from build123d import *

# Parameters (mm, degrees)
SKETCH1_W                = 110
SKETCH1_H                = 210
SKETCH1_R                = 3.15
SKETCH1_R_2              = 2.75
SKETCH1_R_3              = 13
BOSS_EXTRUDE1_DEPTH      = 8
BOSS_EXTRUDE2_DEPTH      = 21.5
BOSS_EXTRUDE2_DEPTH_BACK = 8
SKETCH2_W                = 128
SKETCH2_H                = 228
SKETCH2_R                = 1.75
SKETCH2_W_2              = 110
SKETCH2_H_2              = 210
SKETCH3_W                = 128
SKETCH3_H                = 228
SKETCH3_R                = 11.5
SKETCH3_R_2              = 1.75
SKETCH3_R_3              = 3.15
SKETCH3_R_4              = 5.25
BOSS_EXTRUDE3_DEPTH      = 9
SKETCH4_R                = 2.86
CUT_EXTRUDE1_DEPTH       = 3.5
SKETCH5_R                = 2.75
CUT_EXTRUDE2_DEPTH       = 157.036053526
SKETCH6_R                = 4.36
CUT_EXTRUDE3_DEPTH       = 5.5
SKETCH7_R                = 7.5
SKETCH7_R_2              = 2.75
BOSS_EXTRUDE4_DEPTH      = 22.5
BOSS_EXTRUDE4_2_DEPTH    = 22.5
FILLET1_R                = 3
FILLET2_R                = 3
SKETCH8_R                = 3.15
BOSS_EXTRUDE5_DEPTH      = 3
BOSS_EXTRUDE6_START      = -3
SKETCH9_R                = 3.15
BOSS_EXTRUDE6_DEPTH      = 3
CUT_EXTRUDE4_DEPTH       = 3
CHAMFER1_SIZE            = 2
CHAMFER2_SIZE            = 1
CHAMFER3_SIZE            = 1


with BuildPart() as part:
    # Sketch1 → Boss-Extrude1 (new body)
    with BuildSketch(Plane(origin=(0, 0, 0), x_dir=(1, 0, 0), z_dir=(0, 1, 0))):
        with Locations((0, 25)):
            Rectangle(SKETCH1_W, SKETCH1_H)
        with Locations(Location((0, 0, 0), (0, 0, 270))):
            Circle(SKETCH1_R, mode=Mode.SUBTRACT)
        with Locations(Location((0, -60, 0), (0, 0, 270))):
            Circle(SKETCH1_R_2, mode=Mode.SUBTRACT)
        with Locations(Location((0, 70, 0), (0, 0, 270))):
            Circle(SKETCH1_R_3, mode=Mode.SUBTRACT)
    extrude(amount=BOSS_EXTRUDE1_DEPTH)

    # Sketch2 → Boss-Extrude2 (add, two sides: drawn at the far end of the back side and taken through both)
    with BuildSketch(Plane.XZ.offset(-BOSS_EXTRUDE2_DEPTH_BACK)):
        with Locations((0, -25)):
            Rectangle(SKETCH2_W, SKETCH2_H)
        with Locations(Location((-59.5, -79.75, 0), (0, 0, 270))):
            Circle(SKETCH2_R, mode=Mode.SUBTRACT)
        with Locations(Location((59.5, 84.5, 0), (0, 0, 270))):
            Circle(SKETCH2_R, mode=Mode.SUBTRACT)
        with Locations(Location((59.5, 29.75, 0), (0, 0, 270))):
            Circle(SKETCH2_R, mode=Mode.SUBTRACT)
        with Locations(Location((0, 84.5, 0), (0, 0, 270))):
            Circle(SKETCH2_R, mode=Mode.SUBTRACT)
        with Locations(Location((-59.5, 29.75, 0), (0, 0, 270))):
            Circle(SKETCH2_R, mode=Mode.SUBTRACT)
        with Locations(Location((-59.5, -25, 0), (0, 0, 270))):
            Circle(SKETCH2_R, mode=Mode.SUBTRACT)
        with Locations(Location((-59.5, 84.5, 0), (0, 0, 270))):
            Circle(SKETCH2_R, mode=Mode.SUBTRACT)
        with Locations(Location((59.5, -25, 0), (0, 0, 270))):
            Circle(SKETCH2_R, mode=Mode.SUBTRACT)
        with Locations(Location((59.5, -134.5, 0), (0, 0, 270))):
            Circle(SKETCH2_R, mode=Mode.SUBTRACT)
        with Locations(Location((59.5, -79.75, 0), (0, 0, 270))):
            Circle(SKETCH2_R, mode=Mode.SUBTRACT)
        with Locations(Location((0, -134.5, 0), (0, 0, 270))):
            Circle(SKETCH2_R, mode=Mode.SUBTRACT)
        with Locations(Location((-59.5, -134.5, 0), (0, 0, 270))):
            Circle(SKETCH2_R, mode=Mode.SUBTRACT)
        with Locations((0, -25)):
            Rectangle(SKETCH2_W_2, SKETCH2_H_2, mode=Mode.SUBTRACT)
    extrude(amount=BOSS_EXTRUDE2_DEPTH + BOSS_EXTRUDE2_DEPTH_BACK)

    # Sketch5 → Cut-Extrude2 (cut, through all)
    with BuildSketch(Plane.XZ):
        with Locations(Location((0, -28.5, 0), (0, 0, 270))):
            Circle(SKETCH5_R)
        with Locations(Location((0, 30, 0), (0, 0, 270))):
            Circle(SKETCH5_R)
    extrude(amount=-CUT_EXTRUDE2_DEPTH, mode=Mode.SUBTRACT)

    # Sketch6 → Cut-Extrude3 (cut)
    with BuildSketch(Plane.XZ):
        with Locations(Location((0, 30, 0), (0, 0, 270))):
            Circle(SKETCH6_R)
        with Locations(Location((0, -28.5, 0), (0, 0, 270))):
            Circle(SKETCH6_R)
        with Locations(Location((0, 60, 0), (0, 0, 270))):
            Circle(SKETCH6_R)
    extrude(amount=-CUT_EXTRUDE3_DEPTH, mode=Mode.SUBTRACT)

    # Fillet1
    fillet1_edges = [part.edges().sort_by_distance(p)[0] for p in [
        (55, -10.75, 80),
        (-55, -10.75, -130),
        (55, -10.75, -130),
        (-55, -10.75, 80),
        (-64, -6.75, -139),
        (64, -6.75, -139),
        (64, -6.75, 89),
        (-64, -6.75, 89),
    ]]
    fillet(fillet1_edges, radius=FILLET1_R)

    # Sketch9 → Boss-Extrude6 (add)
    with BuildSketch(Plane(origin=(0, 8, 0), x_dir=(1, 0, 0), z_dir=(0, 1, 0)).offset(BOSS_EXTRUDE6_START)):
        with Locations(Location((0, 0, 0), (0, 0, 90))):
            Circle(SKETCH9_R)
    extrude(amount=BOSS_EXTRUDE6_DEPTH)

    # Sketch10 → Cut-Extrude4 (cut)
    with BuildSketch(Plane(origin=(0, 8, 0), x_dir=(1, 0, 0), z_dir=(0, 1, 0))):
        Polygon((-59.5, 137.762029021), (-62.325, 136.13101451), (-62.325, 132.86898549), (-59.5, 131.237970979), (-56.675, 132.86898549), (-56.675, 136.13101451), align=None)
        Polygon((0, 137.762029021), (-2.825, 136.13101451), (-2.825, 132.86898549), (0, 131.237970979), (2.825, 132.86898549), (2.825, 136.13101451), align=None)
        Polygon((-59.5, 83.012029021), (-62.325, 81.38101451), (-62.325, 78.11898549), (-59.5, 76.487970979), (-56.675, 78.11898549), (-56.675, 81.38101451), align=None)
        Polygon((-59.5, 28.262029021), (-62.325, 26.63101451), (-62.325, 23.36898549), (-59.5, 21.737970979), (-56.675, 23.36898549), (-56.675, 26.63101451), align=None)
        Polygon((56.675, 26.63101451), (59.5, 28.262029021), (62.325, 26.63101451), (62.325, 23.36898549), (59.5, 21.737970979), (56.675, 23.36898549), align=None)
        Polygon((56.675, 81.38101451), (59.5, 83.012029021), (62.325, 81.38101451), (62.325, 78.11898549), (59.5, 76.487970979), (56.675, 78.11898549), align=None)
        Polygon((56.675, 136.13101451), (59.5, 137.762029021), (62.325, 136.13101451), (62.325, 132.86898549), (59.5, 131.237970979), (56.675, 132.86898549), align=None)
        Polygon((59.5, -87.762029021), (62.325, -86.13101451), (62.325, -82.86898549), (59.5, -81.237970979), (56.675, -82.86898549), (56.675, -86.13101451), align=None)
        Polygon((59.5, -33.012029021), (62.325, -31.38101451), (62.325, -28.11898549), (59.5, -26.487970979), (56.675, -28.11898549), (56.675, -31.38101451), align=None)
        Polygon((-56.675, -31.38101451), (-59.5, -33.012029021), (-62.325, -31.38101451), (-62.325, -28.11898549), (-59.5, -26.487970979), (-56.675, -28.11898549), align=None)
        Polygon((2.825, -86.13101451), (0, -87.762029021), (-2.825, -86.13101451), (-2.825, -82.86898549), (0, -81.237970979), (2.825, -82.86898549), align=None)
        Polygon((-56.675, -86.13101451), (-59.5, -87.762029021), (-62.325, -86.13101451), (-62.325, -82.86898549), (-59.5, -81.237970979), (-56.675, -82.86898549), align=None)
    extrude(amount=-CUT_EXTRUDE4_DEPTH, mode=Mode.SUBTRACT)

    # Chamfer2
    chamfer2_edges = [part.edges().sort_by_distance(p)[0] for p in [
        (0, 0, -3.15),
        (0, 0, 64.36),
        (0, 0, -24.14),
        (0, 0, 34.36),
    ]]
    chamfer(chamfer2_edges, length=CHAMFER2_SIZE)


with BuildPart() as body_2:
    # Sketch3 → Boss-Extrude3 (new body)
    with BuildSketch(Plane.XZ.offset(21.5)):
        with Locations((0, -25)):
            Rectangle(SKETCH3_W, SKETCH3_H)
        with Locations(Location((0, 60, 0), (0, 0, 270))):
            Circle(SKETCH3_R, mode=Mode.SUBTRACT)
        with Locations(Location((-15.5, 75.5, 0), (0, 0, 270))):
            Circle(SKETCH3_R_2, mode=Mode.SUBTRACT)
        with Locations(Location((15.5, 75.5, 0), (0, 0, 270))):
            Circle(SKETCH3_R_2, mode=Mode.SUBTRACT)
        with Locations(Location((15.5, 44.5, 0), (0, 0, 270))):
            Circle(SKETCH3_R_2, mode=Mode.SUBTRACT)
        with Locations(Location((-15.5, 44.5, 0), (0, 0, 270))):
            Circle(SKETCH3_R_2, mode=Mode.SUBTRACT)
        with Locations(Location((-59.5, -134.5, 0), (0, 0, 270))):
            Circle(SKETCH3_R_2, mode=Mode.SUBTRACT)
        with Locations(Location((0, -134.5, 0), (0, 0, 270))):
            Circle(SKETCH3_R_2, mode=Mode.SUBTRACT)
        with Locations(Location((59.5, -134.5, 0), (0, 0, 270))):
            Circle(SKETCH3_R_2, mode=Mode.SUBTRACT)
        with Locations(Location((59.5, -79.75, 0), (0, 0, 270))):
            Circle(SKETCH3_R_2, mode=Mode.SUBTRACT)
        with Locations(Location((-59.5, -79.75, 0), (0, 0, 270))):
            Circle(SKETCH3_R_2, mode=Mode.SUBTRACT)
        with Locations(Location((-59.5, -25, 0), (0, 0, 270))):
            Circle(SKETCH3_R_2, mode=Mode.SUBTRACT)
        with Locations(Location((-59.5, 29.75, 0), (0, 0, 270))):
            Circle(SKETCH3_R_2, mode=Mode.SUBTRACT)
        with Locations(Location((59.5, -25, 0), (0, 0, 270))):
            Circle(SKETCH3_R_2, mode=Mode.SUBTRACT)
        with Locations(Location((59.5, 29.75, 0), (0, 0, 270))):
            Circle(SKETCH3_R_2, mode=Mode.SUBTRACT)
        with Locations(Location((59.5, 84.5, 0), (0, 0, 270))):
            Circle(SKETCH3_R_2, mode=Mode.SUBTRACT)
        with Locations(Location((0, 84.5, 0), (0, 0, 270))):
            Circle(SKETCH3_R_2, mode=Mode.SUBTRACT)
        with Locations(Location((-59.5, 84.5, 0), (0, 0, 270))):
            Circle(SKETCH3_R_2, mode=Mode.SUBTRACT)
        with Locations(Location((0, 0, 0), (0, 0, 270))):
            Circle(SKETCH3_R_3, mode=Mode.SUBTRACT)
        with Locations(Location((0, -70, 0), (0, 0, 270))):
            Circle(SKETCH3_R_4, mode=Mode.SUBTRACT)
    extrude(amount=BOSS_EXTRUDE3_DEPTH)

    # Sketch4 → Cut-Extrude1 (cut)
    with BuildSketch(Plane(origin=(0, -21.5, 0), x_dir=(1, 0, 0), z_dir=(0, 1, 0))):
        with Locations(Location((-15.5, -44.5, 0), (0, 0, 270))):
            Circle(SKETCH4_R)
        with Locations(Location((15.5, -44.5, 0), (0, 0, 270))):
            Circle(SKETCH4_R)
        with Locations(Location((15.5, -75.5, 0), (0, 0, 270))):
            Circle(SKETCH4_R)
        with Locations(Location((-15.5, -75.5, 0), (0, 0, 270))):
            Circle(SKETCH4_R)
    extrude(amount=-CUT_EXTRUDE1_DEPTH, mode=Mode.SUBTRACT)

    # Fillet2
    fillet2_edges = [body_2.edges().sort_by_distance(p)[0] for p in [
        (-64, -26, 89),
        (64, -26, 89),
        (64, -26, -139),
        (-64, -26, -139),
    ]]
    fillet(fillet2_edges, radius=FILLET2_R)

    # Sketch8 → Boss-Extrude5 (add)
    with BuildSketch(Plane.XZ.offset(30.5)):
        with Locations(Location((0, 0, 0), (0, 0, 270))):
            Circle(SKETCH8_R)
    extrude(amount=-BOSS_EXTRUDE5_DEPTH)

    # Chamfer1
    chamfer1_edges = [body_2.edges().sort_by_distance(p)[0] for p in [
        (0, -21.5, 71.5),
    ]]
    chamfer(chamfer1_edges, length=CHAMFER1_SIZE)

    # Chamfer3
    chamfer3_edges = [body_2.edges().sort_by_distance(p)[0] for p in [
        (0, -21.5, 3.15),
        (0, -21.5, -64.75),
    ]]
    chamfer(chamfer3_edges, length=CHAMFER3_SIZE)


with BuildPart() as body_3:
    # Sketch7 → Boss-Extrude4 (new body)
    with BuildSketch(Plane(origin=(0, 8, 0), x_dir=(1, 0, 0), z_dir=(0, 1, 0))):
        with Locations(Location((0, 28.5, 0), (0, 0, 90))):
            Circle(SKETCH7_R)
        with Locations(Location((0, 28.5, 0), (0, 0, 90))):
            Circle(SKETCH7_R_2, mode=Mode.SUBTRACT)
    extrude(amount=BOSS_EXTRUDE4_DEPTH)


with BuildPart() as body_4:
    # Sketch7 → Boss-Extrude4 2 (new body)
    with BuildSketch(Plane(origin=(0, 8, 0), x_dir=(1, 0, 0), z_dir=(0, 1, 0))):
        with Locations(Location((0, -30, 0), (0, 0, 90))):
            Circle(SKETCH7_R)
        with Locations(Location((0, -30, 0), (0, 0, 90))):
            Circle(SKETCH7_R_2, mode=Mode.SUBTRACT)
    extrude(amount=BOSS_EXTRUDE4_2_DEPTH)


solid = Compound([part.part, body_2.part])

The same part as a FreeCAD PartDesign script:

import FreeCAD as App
import Part
import Sketcher

V = App.Vector
Q = App.Units.Quantity


def edges_at(feature, points):
    """Names of the edges that pass closest to the given points."""
    edges = feature.Shape.Edges
    near = lambda p: min(range(len(edges)), key=lambda i: edges[i].distToShape(Part.Vertex(*p))[0])
    return sorted({f"Edge{near(p) + 1}" for p in points})


def add_polygon(sketch, points):
    """Adds a closed chain of lines whose ends are joined by coincident constraints."""
    first, n = sketch.GeometryCount, len(points)
    for a, b in zip(points, points[1:] + points[:1]):
        sketch.addGeometry(Part.LineSegment(App.Vector(*a, 0), App.Vector(*b, 0)), False)
    for i in range(n):
        sketch.addConstraint(Sketcher.Constraint("Coincident", first + i, 2, first + (i + 1) % n, 1))

doc = App.newDocument("Part")
params = doc.addObject("Spreadsheet::Sheet", "Params")
for row, (alias, value) in enumerate([
    ("sketch1_diameter", "26 mm"),
    ("sketch1_diameter2", "5.5 mm"),
    ("sketch1_diameter3", "6.3 mm"),
    ("sketch1_width", "110 mm"),
    ("sketch1_height", "210 mm"),
    ("pad1_length", "8 mm"),
    ("sketch2_diameter", "3.5 mm"),
    ("sketch2_width", "128 mm"),
    ("sketch2_width2", "110 mm"),
    ("sketch2_height", "228 mm"),
    ("sketch2_height2", "210 mm"),
    ("pad2_length", "21.5 mm"),
    ("pad2_length2", "8 mm"),
    ("sketch3_diameter", "5.5 mm"),
    ("sketch4_diameter", "8.72 mm"),
    ("pocket2_length", "5.5 mm"),
    ("fillet_radius", "3 mm"),
    ("sketch5_diameter", "6.3 mm"),
    ("pad3_length", "3 mm"),
    ("pocket3_length", "3 mm"),
    ("chamfer_size", "1 mm"),
    ("sketch7_diameter", "23 mm"),
    ("sketch7_diameter2", "3.5 mm"),
    ("sketch7_diameter3", "10.5 mm"),
    ("sketch7_diameter4", "6.3 mm"),
    ("sketch7_width", "128 mm"),
    ("pad4_length", "9 mm"),
    ("sketch8_diameter", "5.72 mm"),
    ("pocket4_length", "3.5 mm"),
    ("fillet2_radius", "3 mm"),
    ("sketch9_diameter", "6.3 mm"),
    ("pad5_length", "3 mm"),
    ("chamfer2_size", "2 mm"),
    ("chamfer3_size", "1 mm"),
    ("sketch10_diameter", "15 mm"),
    ("sketch10_diameter2", "5.5 mm"),
    ("pad6_length", "22.5 mm"),
    ("sketch11_diameter", "15 mm"),
    ("sketch11_diameter2", "5.5 mm"),
    ("pad7_length", "22.5 mm"),
], start=1):
    params.set(f"A{row}", alias)
    params.set(f"B{row}", "=" + value)
    params.setAlias(f"B{row}", alias)

body = doc.addObject("PartDesign::Body", "Body")

# Sketch on XZ plane
sketch1 = doc.addObject("Sketcher::SketchObject", "Sketch")
body.addObject(sketch1)
sketch1.AttachmentSupport = (doc.XZ_Plane, [""])
sketch1.MapMode = "FlatFace"
add_polygon(sketch1, [(-55, -130), (-55, 80), (55, 80), (55, -130)])  # lines 0-3
sketch1.addGeometry(Part.Circle(V(0, 60, 0), V(0, 0, 1), 2.8), False)  # 4
sketch1.addGeometry(Part.Circle(V(0, 0, 0), V(0, 0, 1), 3.1), False)  # 5
sketch1.addGeometry(Part.Circle(V(0, -70, 0), V(0, 0, 1), 13), False)  # 6
sketch1.addConstraint(Sketcher.Constraint("Vertical", 0))
sketch1.addConstraint(Sketcher.Constraint("Horizontal", 1))
sketch1.addConstraint(Sketcher.Constraint("Vertical", 2))
sketch1.addConstraint(Sketcher.Constraint("Horizontal", 3))
sketch1.addConstraint(Sketcher.Constraint("Coincident", 5, 3, -1, 1))
sketch1.addConstraint(Sketcher.Constraint("PointOnObject", 4, 3, -2))
sketch1.addConstraint(Sketcher.Constraint("PointOnObject", 6, 3, -2))
sketch1.addConstraint(Sketcher.Constraint("Diameter", 6, Q("26 mm")))
sketch1.addConstraint(Sketcher.Constraint("Diameter", 4, Q("5.5 mm")))
sketch1.addConstraint(Sketcher.Constraint("Diameter", 5, Q("6.3 mm")))
sketch1.addConstraint(Sketcher.Constraint("DistanceX", 1, 1, 1, 2, Q("110 mm")))
sketch1.addConstraint(Sketcher.Constraint("DistanceY", 0, 1, 0, 2, Q("210 mm")))
sketch1.addConstraint(Sketcher.Constraint("DistanceY", -1, 1, 4, 3, Q("60 mm")))
sketch1.addConstraint(Sketcher.Constraint("DistanceY", 6, 3, -1, 1, Q("70 mm")))
sketch1.addConstraint(Sketcher.Constraint("DistanceX", 0, 2, -1, 1, Q("55 mm")))
sketch1.addConstraint(Sketcher.Constraint("DistanceY", -1, 1, 0, 2, Q("80 mm")))
sketch1.setExpression("Constraints[11]", "Params.sketch1_diameter")
sketch1.setExpression("Constraints[12]", "Params.sketch1_diameter2")
sketch1.setExpression("Constraints[13]", "Params.sketch1_diameter3")
sketch1.setExpression("Constraints[14]", "Params.sketch1_width")
sketch1.setExpression("Constraints[15]", "Params.sketch1_height")
pad1 = doc.addObject("PartDesign::Pad", "Pad")
body.addObject(pad1)
pad1.Profile = sketch1
pad1.setExpression("Length", "Params.pad1_length")
pad1.Reversed = True

# Sketch on XZ plane
sketch2 = doc.addObject("Sketcher::SketchObject", "Sketch001")
body.addObject(sketch2)
sketch2.AttachmentSupport = (doc.XZ_Plane, [""])
sketch2.MapMode = "FlatFace"
add_polygon(sketch2, [(-64, 89), (-64, -139), (64, -139), (64, 89)])  # lines 0-3
sketch2.addGeometry(Part.Circle(V(-59.5, -134.5, 0), V(0, 0, 1), 1.8), False)  # 4
sketch2.addGeometry(Part.Circle(V(-59.5, -79.8, 0), V(0, 0, 1), 1.8), False)  # 5
sketch2.addGeometry(Part.Circle(V(0, -134.5, 0), V(0, 0, 1), 1.8), False)  # 6
sketch2.addGeometry(Part.Circle(V(59.5, -134.5, 0), V(0, 0, 1), 1.8), False)  # 7
sketch2.addGeometry(Part.Circle(V(59.5, -79.8, 0), V(0, 0, 1), 1.8), False)  # 8
sketch2.addGeometry(Part.Circle(V(-59.5, -25, 0), V(0, 0, 1), 1.8), False)  # 9
sketch2.addGeometry(Part.Circle(V(-59.5, 29.8, 0), V(0, 0, 1), 1.8), False)  # 10
sketch2.addGeometry(Part.Circle(V(-59.5, 84.5, 0), V(0, 0, 1), 1.8), False)  # 11
add_polygon(sketch2, [(55, -130), (-55, -130), (-55, 80), (55, 80)])  # lines 12-15
sketch2.addGeometry(Part.Circle(V(59.5, -25, 0), V(0, 0, 1), 1.8), False)  # 16
sketch2.addGeometry(Part.Circle(V(59.5, 29.8, 0), V(0, 0, 1), 1.8), False)  # 17
sketch2.addGeometry(Part.Circle(V(0, 84.5, 0), V(0, 0, 1), 1.8), False)  # 18
sketch2.addGeometry(Part.Circle(V(59.5, 84.5, 0), V(0, 0, 1), 1.8), False)  # 19
sketch2.addConstraint(Sketcher.Constraint("Vertical", 0))
sketch2.addConstraint(Sketcher.Constraint("Horizontal", 1))
sketch2.addConstraint(Sketcher.Constraint("Vertical", 2))
sketch2.addConstraint(Sketcher.Constraint("Horizontal", 3))
sketch2.addConstraint(Sketcher.Constraint("Horizontal", 12))
sketch2.addConstraint(Sketcher.Constraint("Vertical", 13))
sketch2.addConstraint(Sketcher.Constraint("Horizontal", 14))
sketch2.addConstraint(Sketcher.Constraint("Vertical", 15))
sketch2.addConstraint(Sketcher.Constraint("Equal", 4, 5))
sketch2.addConstraint(Sketcher.Constraint("Equal", 5, 6))
sketch2.addConstraint(Sketcher.Constraint("Equal", 6, 7))
sketch2.addConstraint(Sketcher.Constraint("Equal", 7, 8))
sketch2.addConstraint(Sketcher.Constraint("Equal", 8, 9))
sketch2.addConstraint(Sketcher.Constraint("Equal", 9, 10))
sketch2.addConstraint(Sketcher.Constraint("Equal", 10, 11))
sketch2.addConstraint(Sketcher.Constraint("Equal", 11, 16))
sketch2.addConstraint(Sketcher.Constraint("Equal", 16, 17))
sketch2.addConstraint(Sketcher.Constraint("Equal", 17, 18))
sketch2.addConstraint(Sketcher.Constraint("Equal", 18, 19))
sketch2.addConstraint(Sketcher.Constraint("Symmetric", 4, 3, 7, 3, -2))
sketch2.addConstraint(Sketcher.Constraint("Symmetric", 5, 3, 8, 3, -2))
sketch2.addConstraint(Sketcher.Constraint("Symmetric", 9, 3, 16, 3, -2))
sketch2.addConstraint(Sketcher.Constraint("Symmetric", 10, 3, 17, 3, -2))
sketch2.addConstraint(Sketcher.Constraint("Symmetric", 11, 3, 19, 3, -2))
sketch2.addConstraint(Sketcher.Constraint("PointOnObject", 6, 3, -2))
sketch2.addConstraint(Sketcher.Constraint("PointOnObject", 18, 3, -2))
sketch2.addConstraint(Sketcher.Constraint("Horizontal", 4, 3, 6, 3))
sketch2.addConstraint(Sketcher.Constraint("Horizontal", 11, 3, 18, 3))
sketch2.addConstraint(Sketcher.Constraint("Vertical", 4, 3, 5, 3))
sketch2.addConstraint(Sketcher.Constraint("Vertical", 5, 3, 9, 3))
sketch2.addConstraint(Sketcher.Constraint("Vertical", 9, 3, 10, 3))
sketch2.addConstraint(Sketcher.Constraint("Vertical", 10, 3, 11, 3))
sketch2.addConstraint(Sketcher.Constraint("Diameter", 4, Q("3.5 mm")))
sketch2.addConstraint(Sketcher.Constraint("DistanceX", 1, 1, 1, 2, Q("128 mm")))
sketch2.addConstraint(Sketcher.Constraint("DistanceX", 12, 2, 12, 1, Q("110 mm")))
sketch2.addConstraint(Sketcher.Constraint("DistanceY", 0, 2, 0, 1, Q("228 mm")))
sketch2.addConstraint(Sketcher.Constraint("DistanceY", 13, 1, 13, 2, Q("210 mm")))
sketch2.addConstraint(Sketcher.Constraint("DistanceY", 9, 3, -1, 1, Q("25 mm")))
sketch2.addConstraint(Sketcher.Constraint("DistanceX", 0, 2, -1, 1, Q("64 mm")))
sketch2.addConstraint(Sketcher.Constraint("DistanceY", 0, 2, -1, 1, Q("139 mm")))
sketch2.addConstraint(Sketcher.Constraint("DistanceX", 12, 2, -1, 1, Q("55 mm")))
sketch2.addConstraint(Sketcher.Constraint("DistanceY", 12, 2, -1, 1, Q("130 mm")))
sketch2.addConstraint(Sketcher.Constraint("DistanceX", 4, 3, 7, 3, Q("119 mm")))
sketch2.addConstraint(Sketcher.Constraint("DistanceY", 4, 3, 11, 3, Q("219 mm")))
sketch2.addConstraint(Sketcher.Constraint("DistanceY", 4, 3, -1, 1, Q("134.5 mm")))
sketch2.addConstraint(Sketcher.Constraint("DistanceY", 5, 3, 10, 3, Q("109.5 mm")))
sketch2.addConstraint(Sketcher.Constraint("DistanceY", 5, 3, -1, 1, Q("79.75 mm")))
sketch2.setExpression("Constraints[40]", "Params.sketch2_diameter")
sketch2.setExpression("Constraints[41]", "Params.sketch2_width")
sketch2.setExpression("Constraints[42]", "Params.sketch2_width2")
sketch2.setExpression("Constraints[43]", "Params.sketch2_height")
sketch2.setExpression("Constraints[44]", "Params.sketch2_height2")
pad2 = doc.addObject("PartDesign::Pad", "Pad001")
body.addObject(pad2)
pad2.Profile = sketch2
pad2.Type = "TwoLengths"
pad2.setExpression("Length", "Params.pad2_length")
pad2.setExpression("Length2", "Params.pad2_length2")

# Sketch on XZ plane
sketch3 = doc.addObject("Sketcher::SketchObject", "Sketch002")
body.addObject(sketch3)
sketch3.AttachmentSupport = (doc.XZ_Plane, [""])
sketch3.MapMode = "FlatFace"
sketch3.addGeometry(Part.Circle(V(0, -28.5, 0), V(0, 0, 1), 2.8), False)
sketch3.addGeometry(Part.Circle(V(0, 30, 0), V(0, 0, 1), 2.8), False)
sketch3.addConstraint(Sketcher.Constraint("Equal", 0, 1))
sketch3.addConstraint(Sketcher.Constraint("PointOnObject", 0, 3, -2))
sketch3.addConstraint(Sketcher.Constraint("PointOnObject", 1, 3, -2))
sketch3.addConstraint(Sketcher.Constraint("Diameter", 0, Q("5.5 mm")))
sketch3.addConstraint(Sketcher.Constraint("DistanceY", -1, 1, 1, 3, Q("30 mm")))
sketch3.addConstraint(Sketcher.Constraint("DistanceY", 0, 3, -1, 1, Q("28.5 mm")))
sketch3.setExpression("Constraints[3]", "Params.sketch3_diameter")
pocket1 = doc.addObject("PartDesign::Pocket", "Pocket")
body.addObject(pocket1)
pocket1.Profile = sketch3
pocket1.Type = "ThroughAll"

# Sketch on XZ plane
sketch4 = doc.addObject("Sketcher::SketchObject", "Sketch003")
body.addObject(sketch4)
sketch4.AttachmentSupport = (doc.XZ_Plane, [""])
sketch4.MapMode = "FlatFace"
sketch4.addGeometry(Part.Circle(V(0, 30, 0), V(0, 0, 1), 4.4), False)
sketch4.addGeometry(Part.Circle(V(0, -28.5, 0), V(0, 0, 1), 4.4), False)
sketch4.addGeometry(Part.Circle(V(0, 60, 0), V(0, 0, 1), 4.4), False)
sketch4.addConstraint(Sketcher.Constraint("Equal", 0, 1))
sketch4.addConstraint(Sketcher.Constraint("Equal", 1, 2))
sketch4.addConstraint(Sketcher.Constraint("PointOnObject", 0, 3, -2))
sketch4.addConstraint(Sketcher.Constraint("PointOnObject", 1, 3, -2))
sketch4.addConstraint(Sketcher.Constraint("PointOnObject", 2, 3, -2))
sketch4.addConstraint(Sketcher.Constraint("Diameter", 0, Q("8.72 mm")))
sketch4.addConstraint(Sketcher.Constraint("DistanceY", -1, 1, 0, 3, Q("30 mm")))
sketch4.addConstraint(Sketcher.Constraint("DistanceY", -1, 1, 2, 3, Q("60 mm")))
sketch4.addConstraint(Sketcher.Constraint("DistanceY", 1, 3, -1, 1, Q("28.5 mm")))
sketch4.setExpression("Constraints[5]", "Params.sketch4_diameter")
pocket2 = doc.addObject("PartDesign::Pocket", "Pocket001")
body.addObject(pocket2)
pocket2.Profile = sketch4
pocket2.setExpression("Length", "Params.pocket2_length")
doc.recompute()

fillet = doc.addObject("PartDesign::Fillet", "Fillet")
body.addObject(fillet)
fillet.Base = (pocket2, edges_at(pocket2, [
    (55, -10.75, 80),
    (-55, -10.75, -130),
    (55, -10.75, -130),
    (-55, -10.75, 80),
    (-64, -6.75, -139),
    (64, -6.75, -139),
    (64, -6.75, 89),
    (-64, -6.75, 89),
]))
fillet.setExpression("Radius", "Params.fillet_radius")

# Sketch on XZ plane
sketch5 = doc.addObject("Sketcher::SketchObject", "Sketch004")
body.addObject(sketch5)
sketch5.AttachmentSupport = (doc.XZ_Plane, [""])
sketch5.MapMode = "FlatFace"
sketch5.AttachmentOffset = App.Placement(V(0, 0, -5), App.Rotation())
sketch5.addGeometry(Part.Circle(V(0, 0, 0), V(0, 0, 1), 3.1), False)
sketch5.addConstraint(Sketcher.Constraint("Coincident", 0, 3, -1, 1))
sketch5.addConstraint(Sketcher.Constraint("Diameter", 0, Q("6.3 mm")))
sketch5.setExpression("Constraints[1]", "Params.sketch5_diameter")
pad3 = doc.addObject("PartDesign::Pad", "Pad002")
body.addObject(pad3)
pad3.Profile = sketch5
pad3.setExpression("Length", "Params.pad3_length")
pad3.Reversed = True

# Sketch on XZ plane
sketch6 = doc.addObject("Sketcher::SketchObject", "Sketch005")
body.addObject(sketch6)
sketch6.AttachmentSupport = (doc.XZ_Plane, [""])
sketch6.MapMode = "FlatFace"
sketch6.AttachmentOffset = App.Placement(V(0, 0, -8), App.Rotation())
add_polygon(sketch6, [(-59.5, -137.8), (-62.3, -136.1), (-62.3, -132.9), (-59.5, -131.2), (-56.7, -132.9), (-56.7, -136.1)])  # lines 0-5
add_polygon(sketch6, [(0, -137.8), (-2.8, -136.1), (-2.8, -132.9), (0, -131.2), (2.8, -132.9), (2.8, -136.1)])  # lines 6-11
add_polygon(sketch6, [(-59.5, -83), (-62.3, -81.4), (-62.3, -78.1), (-59.5, -76.5), (-56.7, -78.1), (-56.7, -81.4)])  # lines 12-17
add_polygon(sketch6, [(-59.5, -28.3), (-62.3, -26.6), (-62.3, -23.4), (-59.5, -21.7), (-56.7, -23.4), (-56.7, -26.6)])  # lines 18-23
add_polygon(sketch6, [(59.5, -28.3), (56.7, -26.6), (56.7, -23.4), (59.5, -21.7), (62.3, -23.4), (62.3, -26.6)])  # lines 24-29
add_polygon(sketch6, [(59.5, -83), (56.7, -81.4), (56.7, -78.1), (59.5, -76.5), (62.3, -78.1), (62.3, -81.4)])  # lines 30-35
add_polygon(sketch6, [(59.5, -137.8), (56.7, -136.1), (56.7, -132.9), (59.5, -131.2), (62.3, -132.9), (62.3, -136.1)])  # lines 36-41
add_polygon(sketch6, [(59.5, 87.8), (62.3, 86.1), (62.3, 82.9), (59.5, 81.2), (56.7, 82.9), (56.7, 86.1)])  # lines 42-47
add_polygon(sketch6, [(59.5, 33), (62.3, 31.4), (62.3, 28.1), (59.5, 26.5), (56.7, 28.1), (56.7, 31.4)])  # lines 48-53
add_polygon(sketch6, [(-59.5, 33), (-56.7, 31.4), (-56.7, 28.1), (-59.5, 26.5), (-62.3, 28.1), (-62.3, 31.4)])  # lines 54-59
add_polygon(sketch6, [(0, 87.8), (2.8, 86.1), (2.8, 82.9), (0, 81.2), (-2.8, 82.9), (-2.8, 86.1)])  # lines 60-65
add_polygon(sketch6, [(-59.5, 87.8), (-56.7, 86.1), (-56.7, 82.9), (-59.5, 81.2), (-62.3, 82.9), (-62.3, 86.1)])  # lines 66-71
sketch6.addConstraint(Sketcher.Constraint("Vertical", 1))
sketch6.addConstraint(Sketcher.Constraint("Vertical", 4))
sketch6.addConstraint(Sketcher.Constraint("Vertical", 7))
sketch6.addConstraint(Sketcher.Constraint("Vertical", 10))
sketch6.addConstraint(Sketcher.Constraint("Vertical", 13))
sketch6.addConstraint(Sketcher.Constraint("Vertical", 16))
sketch6.addConstraint(Sketcher.Constraint("Vertical", 19))
sketch6.addConstraint(Sketcher.Constraint("Vertical", 22))
sketch6.addConstraint(Sketcher.Constraint("Vertical", 25))
sketch6.addConstraint(Sketcher.Constraint("Vertical", 28))
sketch6.addConstraint(Sketcher.Constraint("Vertical", 31))
sketch6.addConstraint(Sketcher.Constraint("Vertical", 34))
sketch6.addConstraint(Sketcher.Constraint("Vertical", 37))
sketch6.addConstraint(Sketcher.Constraint("Vertical", 40))
sketch6.addConstraint(Sketcher.Constraint("Vertical", 43))
sketch6.addConstraint(Sketcher.Constraint("Vertical", 46))
sketch6.addConstraint(Sketcher.Constraint("Vertical", 49))
sketch6.addConstraint(Sketcher.Constraint("Vertical", 52))
sketch6.addConstraint(Sketcher.Constraint("Vertical", 55))
sketch6.addConstraint(Sketcher.Constraint("Vertical", 58))
sketch6.addConstraint(Sketcher.Constraint("Vertical", 61))
sketch6.addConstraint(Sketcher.Constraint("Vertical", 64))
sketch6.addConstraint(Sketcher.Constraint("Vertical", 67))
sketch6.addConstraint(Sketcher.Constraint("Vertical", 70))
sketch6.addConstraint(Sketcher.Constraint("Symmetric", 7, 2, 9, 2, -2))
sketch6.addConstraint(Sketcher.Constraint("Symmetric", 22, 2, 24, 2, -2))
sketch6.addConstraint(Sketcher.Constraint("Symmetric", 20, 2, 26, 2, -2))
sketch6.addConstraint(Sketcher.Constraint("Symmetric", 19, 2, 27, 2, -2))
sketch6.addConstraint(Sketcher.Constraint("Symmetric", 23, 2, 29, 2, -2))
sketch6.addConstraint(Sketcher.Constraint("Symmetric", 16, 2, 30, 2, -2))
sketch6.addConstraint(Sketcher.Constraint("Symmetric", 14, 2, 32, 2, -2))
sketch6.addConstraint(Sketcher.Constraint("Symmetric", 13, 2, 33, 2, -2))
sketch6.addConstraint(Sketcher.Constraint("Symmetric", 17, 2, 35, 2, -2))
sketch6.addConstraint(Sketcher.Constraint("Symmetric", 4, 2, 36, 2, -2))
sketch6.addConstraint(Sketcher.Constraint("Symmetric", 2, 2, 38, 2, -2))
sketch6.addConstraint(Sketcher.Constraint("Symmetric", 1, 2, 39, 2, -2))
sketch6.addConstraint(Sketcher.Constraint("Symmetric", 5, 2, 41, 2, -2))
sketch6.addConstraint(Sketcher.Constraint("Symmetric", 52, 2, 54, 2, -2))
sketch6.addConstraint(Sketcher.Constraint("Symmetric", 50, 2, 56, 2, -2))
sketch6.addConstraint(Sketcher.Constraint("Symmetric", 49, 2, 57, 2, -2))
sketch6.addConstraint(Sketcher.Constraint("Symmetric", 53, 2, 59, 2, -2))
sketch6.addConstraint(Sketcher.Constraint("Symmetric", 61, 2, 63, 2, -2))
sketch6.addConstraint(Sketcher.Constraint("Symmetric", 46, 2, 66, 2, -2))
sketch6.addConstraint(Sketcher.Constraint("Symmetric", 44, 2, 68, 2, -2))
sketch6.addConstraint(Sketcher.Constraint("Symmetric", 43, 2, 69, 2, -2))
sketch6.addConstraint(Sketcher.Constraint("Symmetric", 47, 2, 71, 2, -2))
sketch6.addConstraint(Sketcher.Constraint("PointOnObject", 8, 2, -2))
sketch6.addConstraint(Sketcher.Constraint("PointOnObject", 11, 2, -2))
sketch6.addConstraint(Sketcher.Constraint("PointOnObject", 62, 2, -2))
sketch6.addConstraint(Sketcher.Constraint("PointOnObject", 65, 2, -2))
sketch6.addConstraint(Sketcher.Constraint("Parallel", 0, 3))
sketch6.addConstraint(Sketcher.Constraint("Parallel", 2, 5))
sketch6.addConstraint(Sketcher.Constraint("Parallel", 3, 6))
sketch6.addConstraint(Sketcher.Constraint("Parallel", 5, 8))
sketch6.addConstraint(Sketcher.Constraint("Parallel", 6, 9))
sketch6.addConstraint(Sketcher.Constraint("Parallel", 8, 11))
sketch6.addConstraint(Sketcher.Constraint("Parallel", 9, 12))
sketch6.addConstraint(Sketcher.Constraint("Parallel", 11, 14))
sketch6.addConstraint(Sketcher.Constraint("Parallel", 12, 15))
sketch6.addConstraint(Sketcher.Constraint("Parallel", 14, 17))
sketch6.addConstraint(Sketcher.Constraint("Parallel", 15, 18))
sketch6.addConstraint(Sketcher.Constraint("Parallel", 17, 20))
sketch6.addConstraint(Sketcher.Constraint("Parallel", 18, 21))
sketch6.addConstraint(Sketcher.Constraint("Parallel", 20, 23))
sketch6.addConstraint(Sketcher.Constraint("Parallel", 23, 26))
sketch6.addConstraint(Sketcher.Constraint("Parallel", 26, 29))
sketch6.addConstraint(Sketcher.Constraint("Parallel", 29, 32))
sketch6.addConstraint(Sketcher.Constraint("Parallel", 32, 35))
sketch6.addConstraint(Sketcher.Constraint("Parallel", 35, 38))
sketch6.addConstraint(Sketcher.Constraint("Parallel", 38, 41))
sketch6.addConstraint(Sketcher.Constraint("Parallel", 39, 42))
sketch6.addConstraint(Sketcher.Constraint("Parallel", 41, 44))
sketch6.addConstraint(Sketcher.Constraint("Parallel", 42, 45))
sketch6.addConstraint(Sketcher.Constraint("Parallel", 44, 47))
sketch6.addConstraint(Sketcher.Constraint("Parallel", 45, 48))
sketch6.addConstraint(Sketcher.Constraint("Parallel", 47, 50))
sketch6.addConstraint(Sketcher.Constraint("Parallel", 48, 51))
sketch6.addConstraint(Sketcher.Constraint("Parallel", 50, 53))
sketch6.addConstraint(Sketcher.Constraint("Parallel", 53, 56))
sketch6.addConstraint(Sketcher.Constraint("Parallel", 56, 59))
sketch6.addConstraint(Sketcher.Constraint("Parallel", 57, 60))
sketch6.addConstraint(Sketcher.Constraint("Parallel", 59, 62))
sketch6.addConstraint(Sketcher.Constraint("Parallel", 62, 65))
sketch6.addConstraint(Sketcher.Constraint("Parallel", 65, 68))
sketch6.addConstraint(Sketcher.Constraint("Parallel", 68, 71))
sketch6.addConstraint(Sketcher.Constraint("Horizontal", 1, 2, 3, 2))
sketch6.addConstraint(Sketcher.Constraint("Horizontal", 0, 2, 4, 2))
sketch6.addConstraint(Sketcher.Constraint("Horizontal", 4, 2, 6, 2))
sketch6.addConstraint(Sketcher.Constraint("Horizontal", 3, 2, 7, 2))
sketch6.addConstraint(Sketcher.Constraint("Horizontal", 2, 2, 8, 2))
sketch6.addConstraint(Sketcher.Constraint("Horizontal", 13, 2, 15, 2))
sketch6.addConstraint(Sketcher.Constraint("Horizontal", 12, 2, 16, 2))
sketch6.addConstraint(Sketcher.Constraint("Horizontal", 19, 2, 21, 2))
sketch6.addConstraint(Sketcher.Constraint("Horizontal", 18, 2, 22, 2))
sketch6.addConstraint(Sketcher.Constraint("Horizontal", 43, 2, 45, 2))
sketch6.addConstraint(Sketcher.Constraint("Horizontal", 42, 2, 46, 2))
sketch6.addConstraint(Sketcher.Constraint("Horizontal", 49, 2, 51, 2))
sketch6.addConstraint(Sketcher.Constraint("Horizontal", 48, 2, 52, 2))
sketch6.addConstraint(Sketcher.Constraint("Horizontal", 46, 2, 60, 2))
sketch6.addConstraint(Sketcher.Constraint("Horizontal", 45, 2, 61, 2))
sketch6.addConstraint(Sketcher.Constraint("Horizontal", 44, 2, 62, 2))
sketch6.addConstraint(Sketcher.Constraint("Vertical", 1, 2, 12, 2))
sketch6.addConstraint(Sketcher.Constraint("Vertical", 5, 2, 14, 2))
sketch6.addConstraint(Sketcher.Constraint("Vertical", 13, 2, 18, 2))
sketch6.addConstraint(Sketcher.Constraint("Vertical", 17, 2, 20, 2))
sketch6.addConstraint(Sketcher.Constraint("Vertical", 40, 2, 42, 2))
sketch6.addConstraint(Sketcher.Constraint("Vertical", 41, 2, 44, 2))
sketch6.addConstraint(Sketcher.Constraint("Vertical", 43, 2, 48, 2))
sketch6.addConstraint(Sketcher.Constraint("Vertical", 47, 2, 50, 2))
sketch6.addConstraint(Sketcher.Constraint("Equal", 10, 13))
sketch6.addConstraint(Sketcher.Constraint("Equal", 16, 19))
sketch6.addConstraint(Sketcher.Constraint("Equal", 40, 43))
sketch6.addConstraint(Sketcher.Constraint("Equal", 46, 49))
sketch6.addConstraint(Sketcher.Constraint("Angle", 0, Q("150 deg")))
sketch6.addConstraint(Sketcher.Constraint("DistanceX", 2, 2, -1, 1, Q("59.5 mm")))
sketch6.addConstraint(Sketcher.Constraint("DistanceX", 0, 2, -1, 1, Q("62.325 mm")))
sketch6.addConstraint(Sketcher.Constraint("DistanceY", 1, 1, 1, 2, Q("3.262029 mm")))
sketch6.addConstraint(Sketcher.Constraint("DistanceY", 2, 2, -1, 1, Q("131.237971 mm")))
sketch6.addConstraint(Sketcher.Constraint("DistanceY", 14, 2, -1, 1, Q("76.487971 mm")))
sketch6.addConstraint(Sketcher.Constraint("DistanceY", 20, 2, -1, 1, Q("21.737971 mm")))
sketch6.addConstraint(Sketcher.Constraint("DistanceY", -1, 1, 44, 2, Q("81.237971 mm")))
sketch6.addConstraint(Sketcher.Constraint("DistanceY", -1, 1, 50, 2, Q("26.487971 mm")))
pocket3 = doc.addObject("PartDesign::Pocket", "Pocket002")
body.addObject(pocket3)
pocket3.Profile = sketch6
pocket3.setExpression("Length", "Params.pocket3_length")
pocket3.Reversed = True
doc.recompute()

chamfer = doc.addObject("PartDesign::Chamfer", "Chamfer")
body.addObject(chamfer)
chamfer.Base = (pocket3, edges_at(pocket3, [
    (0, 0, -3.15),
    (0, 0, 64.36),
    (0, 0, -24.14),
    (0, 0, 34.36),
]))
chamfer.setExpression("Size", "Params.chamfer_size")
body2 = doc.addObject("PartDesign::Body", "Body001")

# Sketch on XZ plane
sketch7 = doc.addObject("Sketcher::SketchObject", "Sketch006")
body2.addObject(sketch7)
sketch7.AttachmentSupport = (doc.getObject("XZ_Plane001"), [""])
sketch7.MapMode = "FlatFace"
sketch7.AttachmentOffset = App.Placement(V(0, 0, 21.5), App.Rotation())
add_polygon(sketch7, [(-64, 89), (-64, -139), (64, -139), (64, 89)])  # lines 0-3
sketch7.addGeometry(Part.Circle(V(-59.5, -134.5, 0), V(0, 0, 1), 1.8), False)  # 4
sketch7.addGeometry(Part.Circle(V(-59.5, -79.8, 0), V(0, 0, 1), 1.8), False)  # 5
sketch7.addGeometry(Part.Circle(V(0, -134.5, 0), V(0, 0, 1), 1.8), False)  # 6
sketch7.addGeometry(Part.Circle(V(59.5, -134.5, 0), V(0, 0, 1), 1.8), False)  # 7
sketch7.addGeometry(Part.Circle(V(0, -70, 0), V(0, 0, 1), 5.2), False)  # 8
sketch7.addGeometry(Part.Circle(V(59.5, -79.8, 0), V(0, 0, 1), 1.8), False)  # 9
sketch7.addGeometry(Part.Circle(V(-59.5, -25, 0), V(0, 0, 1), 1.8), False)  # 10
sketch7.addGeometry(Part.Circle(V(-59.5, 29.8, 0), V(0, 0, 1), 1.8), False)  # 11
sketch7.addGeometry(Part.Circle(V(-59.5, 84.5, 0), V(0, 0, 1), 1.8), False)  # 12
sketch7.addGeometry(Part.Circle(V(-15.5, 44.5, 0), V(0, 0, 1), 1.8), False)  # 13
sketch7.addGeometry(Part.Circle(V(-15.5, 75.5, 0), V(0, 0, 1), 1.8), False)  # 14
sketch7.addGeometry(Part.Circle(V(0, 0, 0), V(0, 0, 1), 3.1), False)  # 15
sketch7.addGeometry(Part.Circle(V(59.5, -25, 0), V(0, 0, 1), 1.8), False)  # 16
sketch7.addGeometry(Part.Circle(V(59.5, 29.8, 0), V(0, 0, 1), 1.8), False)  # 17
sketch7.addGeometry(Part.Circle(V(15.5, 44.5, 0), V(0, 0, 1), 1.8), False)  # 18
sketch7.addGeometry(Part.Circle(V(0, 60, 0), V(0, 0, 1), 11.5), False)  # 19
sketch7.addGeometry(Part.Circle(V(0, 84.5, 0), V(0, 0, 1), 1.8), False)  # 20
sketch7.addGeometry(Part.Circle(V(15.5, 75.5, 0), V(0, 0, 1), 1.8), False)  # 21
sketch7.addGeometry(Part.Circle(V(59.5, 84.5, 0), V(0, 0, 1), 1.8), False)  # 22
sketch7.addConstraint(Sketcher.Constraint("Vertical", 0))
sketch7.addConstraint(Sketcher.Constraint("Horizontal", 1))
sketch7.addConstraint(Sketcher.Constraint("Vertical", 2))
sketch7.addConstraint(Sketcher.Constraint("Horizontal", 3))
sketch7.addConstraint(Sketcher.Constraint("Coincident", 15, 3, -1, 1))
sketch7.addConstraint(Sketcher.Constraint("Equal", 4, 5))
sketch7.addConstraint(Sketcher.Constraint("Equal", 5, 6))
sketch7.addConstraint(Sketcher.Constraint("Equal", 6, 7))
sketch7.addConstraint(Sketcher.Constraint("Equal", 7, 9))
sketch7.addConstraint(Sketcher.Constraint("Equal", 9, 10))
sketch7.addConstraint(Sketcher.Constraint("Equal", 10, 11))
sketch7.addConstraint(Sketcher.Constraint("Equal", 11, 12))
sketch7.addConstraint(Sketcher.Constraint("Equal", 12, 13))
sketch7.addConstraint(Sketcher.Constraint("Equal", 13, 14))
sketch7.addConstraint(Sketcher.Constraint("Equal", 14, 16))
sketch7.addConstraint(Sketcher.Constraint("Equal", 16, 17))
sketch7.addConstraint(Sketcher.Constraint("Equal", 17, 18))
sketch7.addConstraint(Sketcher.Constraint("Equal", 18, 20))
sketch7.addConstraint(Sketcher.Constraint("Equal", 20, 21))
sketch7.addConstraint(Sketcher.Constraint("Equal", 21, 22))
sketch7.addConstraint(Sketcher.Constraint("Symmetric", 4, 3, 7, 3, -2))
sketch7.addConstraint(Sketcher.Constraint("Symmetric", 5, 3, 9, 3, -2))
sketch7.addConstraint(Sketcher.Constraint("Symmetric", 10, 3, 16, 3, -2))
sketch7.addConstraint(Sketcher.Constraint("Symmetric", 11, 3, 17, 3, -2))
sketch7.addConstraint(Sketcher.Constraint("Symmetric", 13, 3, 18, 3, -2))
sketch7.addConstraint(Sketcher.Constraint("Symmetric", 14, 3, 21, 3, -2))
sketch7.addConstraint(Sketcher.Constraint("Symmetric", 12, 3, 22, 3, -2))
sketch7.addConstraint(Sketcher.Constraint("PointOnObject", 6, 3, -2))
sketch7.addConstraint(Sketcher.Constraint("PointOnObject", 8, 3, -2))
sketch7.addConstraint(Sketcher.Constraint("PointOnObject", 19, 3, -2))
sketch7.addConstraint(Sketcher.Constraint("PointOnObject", 20, 3, -2))
sketch7.addConstraint(Sketcher.Constraint("Horizontal", 4, 3, 6, 3))
sketch7.addConstraint(Sketcher.Constraint("Horizontal", 12, 3, 20, 3))
sketch7.addConstraint(Sketcher.Constraint("Vertical", 4, 3, 5, 3))
sketch7.addConstraint(Sketcher.Constraint("Vertical", 5, 3, 10, 3))
sketch7.addConstraint(Sketcher.Constraint("Vertical", 10, 3, 11, 3))
sketch7.addConstraint(Sketcher.Constraint("Vertical", 11, 3, 12, 3))
sketch7.addConstraint(Sketcher.Constraint("Vertical", 13, 3, 14, 3))
sketch7.addConstraint(Sketcher.Constraint("Diameter", 19, Q("23 mm")))
sketch7.addConstraint(Sketcher.Constraint("Diameter", 4, Q("3.5 mm")))
sketch7.addConstraint(Sketcher.Constraint("Diameter", 8, Q("10.5 mm")))
sketch7.addConstraint(Sketcher.Constraint("Diameter", 15, Q("6.3 mm")))
sketch7.addConstraint(Sketcher.Constraint("DistanceX", 1, 1, 1, 2, Q("128 mm")))
sketch7.addConstraint(Sketcher.Constraint("DistanceY", 0, 2, 0, 1, Q("228 mm")))
sketch7.addConstraint(Sketcher.Constraint("DistanceY", 8, 3, -1, 1, Q("70 mm")))
sketch7.addConstraint(Sketcher.Constraint("DistanceY", 10, 3, -1, 1, Q("25 mm")))
sketch7.addConstraint(Sketcher.Constraint("DistanceY", -1, 1, 19, 3, Q("60 mm")))
sketch7.addConstraint(Sketcher.Constraint("DistanceX", 0, 2, -1, 1, Q("64 mm")))
sketch7.addConstraint(Sketcher.Constraint("DistanceY", 0, 2, -1, 1, Q("139 mm")))
sketch7.addConstraint(Sketcher.Constraint("DistanceX", 4, 3, 7, 3, Q("119 mm")))
sketch7.addConstraint(Sketcher.Constraint("DistanceX", 11, 3, 13, 3, Q("44 mm")))
sketch7.addConstraint(Sketcher.Constraint("DistanceY", 13, 3, 12, 3, Q("40 mm")))
sketch7.addConstraint(Sketcher.Constraint("DistanceY", 13, 3, 14, 3, Q("31 mm")))
sketch7.addConstraint(Sketcher.Constraint("DistanceY", 4, 3, -1, 1, Q("134.5 mm")))
sketch7.addConstraint(Sketcher.Constraint("DistanceY", -1, 1, 12, 3, Q("84.5 mm")))
sketch7.addConstraint(Sketcher.Constraint("DistanceY", 5, 3, 11, 3, Q("109.5 mm")))
sketch7.addConstraint(Sketcher.Constraint("DistanceY", 5, 3, -1, 1, Q("79.75 mm")))
sketch7.setExpression("Constraints[42]", "Params.sketch7_diameter")
sketch7.setExpression("Constraints[43]", "Params.sketch7_diameter2")
sketch7.setExpression("Constraints[44]", "Params.sketch7_diameter3")
sketch7.setExpression("Constraints[45]", "Params.sketch7_diameter4")
sketch7.setExpression("Constraints[46]", "Params.sketch7_width")
pad4 = doc.addObject("PartDesign::Pad", "Pad003")
body2.addObject(pad4)
pad4.Profile = sketch7
pad4.setExpression("Length", "Params.pad4_length")

# Sketch on XZ plane
sketch8 = doc.addObject("Sketcher::SketchObject", "Sketch007")
body2.addObject(sketch8)
sketch8.AttachmentSupport = (doc.getObject("XZ_Plane001"), [""])
sketch8.MapMode = "FlatFace"
sketch8.AttachmentOffset = App.Placement(V(0, 0, 21.5), App.Rotation())
sketch8.addGeometry(Part.Circle(V(-15.5, 44.5, 0), V(0, 0, 1), 2.9), False)
sketch8.addGeometry(Part.Circle(V(15.5, 44.5, 0), V(0, 0, 1), 2.9), False)
sketch8.addGeometry(Part.Circle(V(15.5, 75.5, 0), V(0, 0, 1), 2.9), False)
sketch8.addGeometry(Part.Circle(V(-15.5, 75.5, 0), V(0, 0, 1), 2.9), False)
sketch8.addConstraint(Sketcher.Constraint("Equal", 0, 1))
sketch8.addConstraint(Sketcher.Constraint("Equal", 1, 2))
sketch8.addConstraint(Sketcher.Constraint("Equal", 2, 3))
sketch8.addConstraint(Sketcher.Constraint("Symmetric", 0, 3, 1, 3, -2))
sketch8.addConstraint(Sketcher.Constraint("Symmetric", 2, 3, 3, 3, -2))
sketch8.addConstraint(Sketcher.Constraint("Vertical", 1, 3, 2, 3))
sketch8.addConstraint(Sketcher.Constraint("Diameter", 0, Q("5.72 mm")))
sketch8.addConstraint(Sketcher.Constraint("DistanceX", 0, 3, 1, 3, Q("31 mm")))
sketch8.addConstraint(Sketcher.Constraint("DistanceY", 1, 3, 2, 3, Q("31 mm")))
sketch8.addConstraint(Sketcher.Constraint("DistanceY", -1, 1, 0, 3, Q("44.5 mm")))
sketch8.setExpression("Constraints[6]", "Params.sketch8_diameter")
pocket4 = doc.addObject("PartDesign::Pocket", "Pocket003")
body2.addObject(pocket4)
pocket4.Profile = sketch8
pocket4.setExpression("Length", "Params.pocket4_length")
pocket4.Reversed = True
doc.recompute()

fillet2 = doc.addObject("PartDesign::Fillet", "Fillet001")
body2.addObject(fillet2)
fillet2.Base = (pocket4, edges_at(pocket4, [
    (-64, -26, 89),
    (64, -26, 89),
    (64, -26, -139),
    (-64, -26, -139),
]))
fillet2.setExpression("Radius", "Params.fillet2_radius")

# Sketch on XZ plane
sketch9 = doc.addObject("Sketcher::SketchObject", "Sketch008")
body2.addObject(sketch9)
sketch9.AttachmentSupport = (doc.getObject("XZ_Plane001"), [""])
sketch9.MapMode = "FlatFace"
sketch9.AttachmentOffset = App.Placement(V(0, 0, 30.5), App.Rotation())
sketch9.addGeometry(Part.Circle(V(0, 0, 0), V(0, 0, 1), 3.1), False)
sketch9.addConstraint(Sketcher.Constraint("Coincident", 0, 3, -1, 1))
sketch9.addConstraint(Sketcher.Constraint("Diameter", 0, Q("6.3 mm")))
sketch9.setExpression("Constraints[1]", "Params.sketch9_diameter")
pad5 = doc.addObject("PartDesign::Pad", "Pad004")
body2.addObject(pad5)
pad5.Profile = sketch9
pad5.setExpression("Length", "Params.pad5_length")
pad5.Reversed = True
doc.recompute()

chamfer2 = doc.addObject("PartDesign::Chamfer", "Chamfer001")
body2.addObject(chamfer2)
chamfer2.Base = (pad5, edges_at(pad5, [(0, -21.5, 71.5)]))
chamfer2.setExpression("Size", "Params.chamfer2_size")
doc.recompute()

chamfer3 = doc.addObject("PartDesign::Chamfer", "Chamfer002")
body2.addObject(chamfer3)
chamfer3.Base = (chamfer2, edges_at(chamfer2, [(0, -21.5, 3.15), (0, -21.5, -64.75)]))
chamfer3.setExpression("Size", "Params.chamfer3_size")
body3 = doc.addObject("PartDesign::Body", "Body002")

# Sketch on XZ plane
sketch10 = doc.addObject("Sketcher::SketchObject", "Sketch009")
body3.addObject(sketch10)
sketch10.AttachmentSupport = (doc.getObject("XZ_Plane002"), [""])
sketch10.MapMode = "FlatFace"
sketch10.AttachmentOffset = App.Placement(V(0, 0, -8), App.Rotation())
sketch10.addGeometry(Part.Circle(V(0, -28.5, 0), V(0, 0, 1), 7.5), False)
sketch10.addGeometry(Part.Circle(V(0, -28.5, 0), V(0, 0, 1), 2.8), False)
sketch10.addConstraint(Sketcher.Constraint("Coincident", 1, 3, 0, 3))
sketch10.addConstraint(Sketcher.Constraint("PointOnObject", 0, 3, -2))
sketch10.addConstraint(Sketcher.Constraint("Diameter", 0, Q("15 mm")))
sketch10.addConstraint(Sketcher.Constraint("Diameter", 1, Q("5.5 mm")))
sketch10.addConstraint(Sketcher.Constraint("DistanceY", 0, 3, -1, 1, Q("28.5 mm")))
sketch10.setExpression("Constraints[2]", "Params.sketch10_diameter")
sketch10.setExpression("Constraints[3]", "Params.sketch10_diameter2")
pad6 = doc.addObject("PartDesign::Pad", "Pad005")
body3.addObject(pad6)
pad6.Profile = sketch10
pad6.setExpression("Length", "Params.pad6_length")
pad6.Reversed = True
body4 = doc.addObject("PartDesign::Body", "Body003")

# Sketch on XZ plane
sketch11 = doc.addObject("Sketcher::SketchObject", "Sketch010")
body4.addObject(sketch11)
sketch11.AttachmentSupport = (doc.getObject("XZ_Plane003"), [""])
sketch11.MapMode = "FlatFace"
sketch11.AttachmentOffset = App.Placement(V(0, 0, -8), App.Rotation())
sketch11.addGeometry(Part.Circle(V(0, 30, 0), V(0, 0, 1), 7.5), False)
sketch11.addGeometry(Part.Circle(V(0, 30, 0), V(0, 0, 1), 2.8), False)
sketch11.addConstraint(Sketcher.Constraint("Coincident", 1, 3, 0, 3))
sketch11.addConstraint(Sketcher.Constraint("PointOnObject", 0, 3, -2))
sketch11.addConstraint(Sketcher.Constraint("Diameter", 0, Q("15 mm")))
sketch11.addConstraint(Sketcher.Constraint("Diameter", 1, Q("5.5 mm")))
sketch11.addConstraint(Sketcher.Constraint("DistanceY", -1, 1, 0, 3, Q("30 mm")))
sketch11.setExpression("Constraints[2]", "Params.sketch11_diameter")
sketch11.setExpression("Constraints[3]", "Params.sketch11_diameter2")
pad7 = doc.addObject("PartDesign::Pad", "Pad006")
body4.addObject(pad7)
pad7.Profile = sketch11
pad7.setExpression("Length", "Params.pad7_length")
pad7.Reversed = True
body3.Visibility = False
body4.Visibility = False

doc.recompute()
